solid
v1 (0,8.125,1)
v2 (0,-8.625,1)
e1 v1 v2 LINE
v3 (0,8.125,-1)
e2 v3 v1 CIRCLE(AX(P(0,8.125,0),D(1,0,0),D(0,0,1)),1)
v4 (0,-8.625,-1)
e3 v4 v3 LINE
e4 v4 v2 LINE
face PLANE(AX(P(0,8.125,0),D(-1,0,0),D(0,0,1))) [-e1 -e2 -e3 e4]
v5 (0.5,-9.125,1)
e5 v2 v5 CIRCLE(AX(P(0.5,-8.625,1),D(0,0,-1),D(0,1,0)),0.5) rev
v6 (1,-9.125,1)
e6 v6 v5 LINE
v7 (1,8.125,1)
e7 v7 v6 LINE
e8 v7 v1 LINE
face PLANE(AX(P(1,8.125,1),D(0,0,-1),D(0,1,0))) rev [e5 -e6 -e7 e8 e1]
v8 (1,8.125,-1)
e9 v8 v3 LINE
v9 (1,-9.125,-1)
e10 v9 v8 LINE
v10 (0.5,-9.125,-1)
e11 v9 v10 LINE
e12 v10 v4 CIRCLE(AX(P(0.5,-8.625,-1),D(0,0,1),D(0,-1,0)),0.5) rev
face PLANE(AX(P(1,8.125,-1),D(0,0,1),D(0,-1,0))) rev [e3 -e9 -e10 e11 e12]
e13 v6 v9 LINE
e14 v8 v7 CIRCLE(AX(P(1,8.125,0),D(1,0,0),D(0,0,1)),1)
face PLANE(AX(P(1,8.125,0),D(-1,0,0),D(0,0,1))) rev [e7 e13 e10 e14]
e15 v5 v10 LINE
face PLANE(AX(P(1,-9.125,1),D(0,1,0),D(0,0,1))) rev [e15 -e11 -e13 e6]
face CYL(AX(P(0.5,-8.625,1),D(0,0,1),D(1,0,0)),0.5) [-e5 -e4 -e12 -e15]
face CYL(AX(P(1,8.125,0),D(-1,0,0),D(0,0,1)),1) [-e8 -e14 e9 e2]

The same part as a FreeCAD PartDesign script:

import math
import FreeCAD as App
import Part
import Sketcher

V = App.Vector
Q = App.Units.Quantity


def edges_at(feature, points):
    """Names of the edges that pass closest to the given points."""
    edges = feature.Shape.Edges
    near = lambda p: min(range(len(edges)), key=lambda i: edges[i].distToShape(Part.Vertex(*p))[0])
    return sorted({f"Edge{near(p) + 1}" for p in points})

doc = App.newDocument("Part")
body = doc.addObject("PartDesign::Body", "Body")

# Sketch on YZ plane
sketch1 = body.newObject("Sketcher::SketchObject", "Sketch")
sketch1.AttachmentSupport = (doc.getObject("YZ_Plane"), [""])
sketch1.MapMode = "FlatFace"
sketch1.addGeometry([
    Part.LineSegment(V(8.1, 1, 0), V(-9.1, 1, 0)),
    Part.LineSegment(V(-9.1, 1, 0), V(-9.1, -1, 0)),
    Part.LineSegment(V(-9.1, -1, 0), V(8.1, -1, 0)),
    Part.ArcOfCircle(Part.Circle(V(8.1, 0, 0), V(0, 0, 1), 1), math.radians(-90), math.radians(90)),
], False)
sketch1.addConstraint([
    Sketcher.Constraint("Coincident", 0, 2, 1, 1),
    Sketcher.Constraint("Coincident", 1, 2, 2, 1),
    Sketcher.Constraint("Tangent", 2, 2, 3, 1),
    Sketcher.Constraint("Tangent", 3, 2, 0, 1),
    Sketcher.Constraint("Horizontal", 0),
    Sketcher.Constraint("Vertical", 1),
    Sketcher.Constraint("Horizontal", 2),
    Sketcher.Constraint("PointOnObject", 3, 3, -1),
    Sketcher.Constraint("Radius", 3, Q("1 mm")),
    Sketcher.Constraint("DistanceX", 0, 2, 0, 1, Q("17.25 mm")),
    Sketcher.Constraint("DistanceX", -1, 1, 3, 3, Q("8.125 mm")),
])
pad1 = body.newObject("PartDesign::Pad", "Pad")
pad1.Profile = sketch1
pad1.Length = 1
doc.recompute()

fillet = body.newObject("PartDesign::Fillet", "Fillet")
fillet.Base = (pad1, edges_at(pad1, [(0, -9.125, 0)]))
fillet.Radius = 0.5

doc.recompute()
